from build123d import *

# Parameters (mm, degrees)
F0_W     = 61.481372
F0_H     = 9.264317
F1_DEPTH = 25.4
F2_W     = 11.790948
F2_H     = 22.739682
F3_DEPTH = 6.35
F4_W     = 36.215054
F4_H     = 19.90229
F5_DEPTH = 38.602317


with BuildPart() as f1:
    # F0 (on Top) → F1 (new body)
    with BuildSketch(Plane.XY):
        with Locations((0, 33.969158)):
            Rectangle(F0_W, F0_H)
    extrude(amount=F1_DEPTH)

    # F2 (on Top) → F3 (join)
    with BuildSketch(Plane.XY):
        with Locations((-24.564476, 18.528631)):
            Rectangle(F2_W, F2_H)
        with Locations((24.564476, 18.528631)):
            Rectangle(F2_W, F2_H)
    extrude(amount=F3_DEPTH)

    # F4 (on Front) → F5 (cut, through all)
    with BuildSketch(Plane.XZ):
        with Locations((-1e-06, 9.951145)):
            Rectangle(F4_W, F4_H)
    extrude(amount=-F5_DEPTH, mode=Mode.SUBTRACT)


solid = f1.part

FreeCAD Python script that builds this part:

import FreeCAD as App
import Part
import Sketcher

V = App.Vector
Q = App.Units.Quantity


def add_polygon(sketch, points):
    """Adds a closed chain of lines whose ends are joined by coincident constraints."""
    first, n = sketch.GeometryCount, len(points)
    for a, b in zip(points, points[1:] + points[:1]):
        sketch.addGeometry(Part.LineSegment(App.Vector(*a, 0), App.Vector(*b, 0)), False)
    for i in range(n):
        sketch.addConstraint(Sketcher.Constraint("Coincident", first + i, 2, first + (i + 1) % n, 1))

doc = App.newDocument("Part")
body = doc.addObject("PartDesign::Body", "Body")

sketch1 = body.newObject("Sketcher::SketchObject", "Sketch")
sketch1.AttachmentSupport = (doc.getObject("XY_Plane"), [""])
sketch1.MapMode = "FlatFace"
add_polygon(sketch1, [(-31, 39), (-31, 29), (31, 29), (31, 39)])
sketch1.addConstraint(Sketcher.Constraint("Vertical", 0))
sketch1.addConstraint(Sketcher.Constraint("Horizontal", 1))
sketch1.addConstraint(Sketcher.Constraint("Vertical", 2))
sketch1.addConstraint(Sketcher.Constraint("Horizontal", 3))
sketch1.addConstraint(Sketcher.Constraint("DistanceY", -1, 1, 0, 2, Q("1.155 in")))
sketch1.addConstraint(Sketcher.Constraint("DistanceX", 1, 1, 1, 2, 61.481372))
sketch1.addConstraint(Sketcher.Constraint("DistanceY", 0, 2, 0, 1, 9.264317))
sketch1.addConstraint(Sketcher.Constraint("DistanceX", 0, 2, -1, 1, 30.740686))
pad1 = body.newObject("PartDesign::Pad", "Pad")
pad1.Profile = sketch1
pad1.Length = Q("1 in")

sketch2 = body.newObject("Sketcher::SketchObject", "Sketch001")
sketch2.AttachmentSupport = (doc.getObject("XY_Plane"), [""])
sketch2.MapMode = "FlatFace"
add_polygon(sketch2, [(-30, 30), (-30, 7), (-19, 7), (-19, 30)])
add_polygon(sketch2, [(19, 30), (19, 7), (30, 7), (30, 30)])
sketch2.addConstraint(Sketcher.Constraint("Vertical", 0))
sketch2.addConstraint(Sketcher.Constraint("Horizontal", 1))
sketch2.addConstraint(Sketcher.Constraint("Vertical", 2))
sketch2.addConstraint(Sketcher.Constraint("Horizontal", 3))
sketch2.addConstraint(Sketcher.Constraint("Vertical", 4))
sketch2.addConstraint(Sketcher.Constraint("Horizontal", 5))
sketch2.addConstraint(Sketcher.Constraint("Vertical", 6))
sketch2.addConstraint(Sketcher.Constraint("Horizontal", 7))
sketch2.addConstraint(Sketcher.Constraint("Symmetric", 1, 2, 4, 2, -2))
sketch2.addConstraint(Sketcher.Constraint("Symmetric", 3, 2, 6, 2, -2))
sketch2.addConstraint(Sketcher.Constraint("DistanceX", 1, 2, 4, 2, Q("1.4700002 in")))
sketch2.addConstraint(Sketcher.Constraint("DistanceX", 0, 2, 5, 2, 60.9199))
sketch2.addConstraint(Sketcher.Constraint("DistanceY", 0, 2, 0, 1, 22.739682))
sketch2.addConstraint(Sketcher.Constraint("DistanceY", -1, 1, 0, 2, 7.15879))
pad2 = body.newObject("PartDesign::Pad", "Pad001")
pad2.Profile = sketch2
pad2.Length = Q("0.25 in")

sketch3 = body.newObject("Sketcher::SketchObject", "Sketch002")
sketch3.AttachmentSupport = (doc.getObject("XZ_Plane"), [""])
sketch3.MapMode = "FlatFace"
add_polygon(sketch3, [(-18, 20), (-18, 0), (18, 0), (18, 20)])
sketch3.addConstraint(Sketcher.Constraint("Vertical", 0))
sketch3.addConstraint(Sketcher.Constraint("Horizontal", 1))
sketch3.addConstraint(Sketcher.Constraint("Vertical", 2))
sketch3.addConstraint(Sketcher.Constraint("Horizontal", 3))
sketch3.addConstraint(Sketcher.Constraint("Symmetric", 0, 2, 1, 2, -1, 1))
sketch3.addConstraint(Sketcher.Constraint("DistanceY", 0, 2, 0, 1, 19.90229))
sketch3.addConstraint(Sketcher.Constraint("DistanceX", 1, 1, 1, 2, 36.215054))
pocket1 = body.newObject("PartDesign::Pocket", "Pocket")
pocket1.Profile = sketch3
pocket1.Type = "ThroughAll"

doc.recompute()
